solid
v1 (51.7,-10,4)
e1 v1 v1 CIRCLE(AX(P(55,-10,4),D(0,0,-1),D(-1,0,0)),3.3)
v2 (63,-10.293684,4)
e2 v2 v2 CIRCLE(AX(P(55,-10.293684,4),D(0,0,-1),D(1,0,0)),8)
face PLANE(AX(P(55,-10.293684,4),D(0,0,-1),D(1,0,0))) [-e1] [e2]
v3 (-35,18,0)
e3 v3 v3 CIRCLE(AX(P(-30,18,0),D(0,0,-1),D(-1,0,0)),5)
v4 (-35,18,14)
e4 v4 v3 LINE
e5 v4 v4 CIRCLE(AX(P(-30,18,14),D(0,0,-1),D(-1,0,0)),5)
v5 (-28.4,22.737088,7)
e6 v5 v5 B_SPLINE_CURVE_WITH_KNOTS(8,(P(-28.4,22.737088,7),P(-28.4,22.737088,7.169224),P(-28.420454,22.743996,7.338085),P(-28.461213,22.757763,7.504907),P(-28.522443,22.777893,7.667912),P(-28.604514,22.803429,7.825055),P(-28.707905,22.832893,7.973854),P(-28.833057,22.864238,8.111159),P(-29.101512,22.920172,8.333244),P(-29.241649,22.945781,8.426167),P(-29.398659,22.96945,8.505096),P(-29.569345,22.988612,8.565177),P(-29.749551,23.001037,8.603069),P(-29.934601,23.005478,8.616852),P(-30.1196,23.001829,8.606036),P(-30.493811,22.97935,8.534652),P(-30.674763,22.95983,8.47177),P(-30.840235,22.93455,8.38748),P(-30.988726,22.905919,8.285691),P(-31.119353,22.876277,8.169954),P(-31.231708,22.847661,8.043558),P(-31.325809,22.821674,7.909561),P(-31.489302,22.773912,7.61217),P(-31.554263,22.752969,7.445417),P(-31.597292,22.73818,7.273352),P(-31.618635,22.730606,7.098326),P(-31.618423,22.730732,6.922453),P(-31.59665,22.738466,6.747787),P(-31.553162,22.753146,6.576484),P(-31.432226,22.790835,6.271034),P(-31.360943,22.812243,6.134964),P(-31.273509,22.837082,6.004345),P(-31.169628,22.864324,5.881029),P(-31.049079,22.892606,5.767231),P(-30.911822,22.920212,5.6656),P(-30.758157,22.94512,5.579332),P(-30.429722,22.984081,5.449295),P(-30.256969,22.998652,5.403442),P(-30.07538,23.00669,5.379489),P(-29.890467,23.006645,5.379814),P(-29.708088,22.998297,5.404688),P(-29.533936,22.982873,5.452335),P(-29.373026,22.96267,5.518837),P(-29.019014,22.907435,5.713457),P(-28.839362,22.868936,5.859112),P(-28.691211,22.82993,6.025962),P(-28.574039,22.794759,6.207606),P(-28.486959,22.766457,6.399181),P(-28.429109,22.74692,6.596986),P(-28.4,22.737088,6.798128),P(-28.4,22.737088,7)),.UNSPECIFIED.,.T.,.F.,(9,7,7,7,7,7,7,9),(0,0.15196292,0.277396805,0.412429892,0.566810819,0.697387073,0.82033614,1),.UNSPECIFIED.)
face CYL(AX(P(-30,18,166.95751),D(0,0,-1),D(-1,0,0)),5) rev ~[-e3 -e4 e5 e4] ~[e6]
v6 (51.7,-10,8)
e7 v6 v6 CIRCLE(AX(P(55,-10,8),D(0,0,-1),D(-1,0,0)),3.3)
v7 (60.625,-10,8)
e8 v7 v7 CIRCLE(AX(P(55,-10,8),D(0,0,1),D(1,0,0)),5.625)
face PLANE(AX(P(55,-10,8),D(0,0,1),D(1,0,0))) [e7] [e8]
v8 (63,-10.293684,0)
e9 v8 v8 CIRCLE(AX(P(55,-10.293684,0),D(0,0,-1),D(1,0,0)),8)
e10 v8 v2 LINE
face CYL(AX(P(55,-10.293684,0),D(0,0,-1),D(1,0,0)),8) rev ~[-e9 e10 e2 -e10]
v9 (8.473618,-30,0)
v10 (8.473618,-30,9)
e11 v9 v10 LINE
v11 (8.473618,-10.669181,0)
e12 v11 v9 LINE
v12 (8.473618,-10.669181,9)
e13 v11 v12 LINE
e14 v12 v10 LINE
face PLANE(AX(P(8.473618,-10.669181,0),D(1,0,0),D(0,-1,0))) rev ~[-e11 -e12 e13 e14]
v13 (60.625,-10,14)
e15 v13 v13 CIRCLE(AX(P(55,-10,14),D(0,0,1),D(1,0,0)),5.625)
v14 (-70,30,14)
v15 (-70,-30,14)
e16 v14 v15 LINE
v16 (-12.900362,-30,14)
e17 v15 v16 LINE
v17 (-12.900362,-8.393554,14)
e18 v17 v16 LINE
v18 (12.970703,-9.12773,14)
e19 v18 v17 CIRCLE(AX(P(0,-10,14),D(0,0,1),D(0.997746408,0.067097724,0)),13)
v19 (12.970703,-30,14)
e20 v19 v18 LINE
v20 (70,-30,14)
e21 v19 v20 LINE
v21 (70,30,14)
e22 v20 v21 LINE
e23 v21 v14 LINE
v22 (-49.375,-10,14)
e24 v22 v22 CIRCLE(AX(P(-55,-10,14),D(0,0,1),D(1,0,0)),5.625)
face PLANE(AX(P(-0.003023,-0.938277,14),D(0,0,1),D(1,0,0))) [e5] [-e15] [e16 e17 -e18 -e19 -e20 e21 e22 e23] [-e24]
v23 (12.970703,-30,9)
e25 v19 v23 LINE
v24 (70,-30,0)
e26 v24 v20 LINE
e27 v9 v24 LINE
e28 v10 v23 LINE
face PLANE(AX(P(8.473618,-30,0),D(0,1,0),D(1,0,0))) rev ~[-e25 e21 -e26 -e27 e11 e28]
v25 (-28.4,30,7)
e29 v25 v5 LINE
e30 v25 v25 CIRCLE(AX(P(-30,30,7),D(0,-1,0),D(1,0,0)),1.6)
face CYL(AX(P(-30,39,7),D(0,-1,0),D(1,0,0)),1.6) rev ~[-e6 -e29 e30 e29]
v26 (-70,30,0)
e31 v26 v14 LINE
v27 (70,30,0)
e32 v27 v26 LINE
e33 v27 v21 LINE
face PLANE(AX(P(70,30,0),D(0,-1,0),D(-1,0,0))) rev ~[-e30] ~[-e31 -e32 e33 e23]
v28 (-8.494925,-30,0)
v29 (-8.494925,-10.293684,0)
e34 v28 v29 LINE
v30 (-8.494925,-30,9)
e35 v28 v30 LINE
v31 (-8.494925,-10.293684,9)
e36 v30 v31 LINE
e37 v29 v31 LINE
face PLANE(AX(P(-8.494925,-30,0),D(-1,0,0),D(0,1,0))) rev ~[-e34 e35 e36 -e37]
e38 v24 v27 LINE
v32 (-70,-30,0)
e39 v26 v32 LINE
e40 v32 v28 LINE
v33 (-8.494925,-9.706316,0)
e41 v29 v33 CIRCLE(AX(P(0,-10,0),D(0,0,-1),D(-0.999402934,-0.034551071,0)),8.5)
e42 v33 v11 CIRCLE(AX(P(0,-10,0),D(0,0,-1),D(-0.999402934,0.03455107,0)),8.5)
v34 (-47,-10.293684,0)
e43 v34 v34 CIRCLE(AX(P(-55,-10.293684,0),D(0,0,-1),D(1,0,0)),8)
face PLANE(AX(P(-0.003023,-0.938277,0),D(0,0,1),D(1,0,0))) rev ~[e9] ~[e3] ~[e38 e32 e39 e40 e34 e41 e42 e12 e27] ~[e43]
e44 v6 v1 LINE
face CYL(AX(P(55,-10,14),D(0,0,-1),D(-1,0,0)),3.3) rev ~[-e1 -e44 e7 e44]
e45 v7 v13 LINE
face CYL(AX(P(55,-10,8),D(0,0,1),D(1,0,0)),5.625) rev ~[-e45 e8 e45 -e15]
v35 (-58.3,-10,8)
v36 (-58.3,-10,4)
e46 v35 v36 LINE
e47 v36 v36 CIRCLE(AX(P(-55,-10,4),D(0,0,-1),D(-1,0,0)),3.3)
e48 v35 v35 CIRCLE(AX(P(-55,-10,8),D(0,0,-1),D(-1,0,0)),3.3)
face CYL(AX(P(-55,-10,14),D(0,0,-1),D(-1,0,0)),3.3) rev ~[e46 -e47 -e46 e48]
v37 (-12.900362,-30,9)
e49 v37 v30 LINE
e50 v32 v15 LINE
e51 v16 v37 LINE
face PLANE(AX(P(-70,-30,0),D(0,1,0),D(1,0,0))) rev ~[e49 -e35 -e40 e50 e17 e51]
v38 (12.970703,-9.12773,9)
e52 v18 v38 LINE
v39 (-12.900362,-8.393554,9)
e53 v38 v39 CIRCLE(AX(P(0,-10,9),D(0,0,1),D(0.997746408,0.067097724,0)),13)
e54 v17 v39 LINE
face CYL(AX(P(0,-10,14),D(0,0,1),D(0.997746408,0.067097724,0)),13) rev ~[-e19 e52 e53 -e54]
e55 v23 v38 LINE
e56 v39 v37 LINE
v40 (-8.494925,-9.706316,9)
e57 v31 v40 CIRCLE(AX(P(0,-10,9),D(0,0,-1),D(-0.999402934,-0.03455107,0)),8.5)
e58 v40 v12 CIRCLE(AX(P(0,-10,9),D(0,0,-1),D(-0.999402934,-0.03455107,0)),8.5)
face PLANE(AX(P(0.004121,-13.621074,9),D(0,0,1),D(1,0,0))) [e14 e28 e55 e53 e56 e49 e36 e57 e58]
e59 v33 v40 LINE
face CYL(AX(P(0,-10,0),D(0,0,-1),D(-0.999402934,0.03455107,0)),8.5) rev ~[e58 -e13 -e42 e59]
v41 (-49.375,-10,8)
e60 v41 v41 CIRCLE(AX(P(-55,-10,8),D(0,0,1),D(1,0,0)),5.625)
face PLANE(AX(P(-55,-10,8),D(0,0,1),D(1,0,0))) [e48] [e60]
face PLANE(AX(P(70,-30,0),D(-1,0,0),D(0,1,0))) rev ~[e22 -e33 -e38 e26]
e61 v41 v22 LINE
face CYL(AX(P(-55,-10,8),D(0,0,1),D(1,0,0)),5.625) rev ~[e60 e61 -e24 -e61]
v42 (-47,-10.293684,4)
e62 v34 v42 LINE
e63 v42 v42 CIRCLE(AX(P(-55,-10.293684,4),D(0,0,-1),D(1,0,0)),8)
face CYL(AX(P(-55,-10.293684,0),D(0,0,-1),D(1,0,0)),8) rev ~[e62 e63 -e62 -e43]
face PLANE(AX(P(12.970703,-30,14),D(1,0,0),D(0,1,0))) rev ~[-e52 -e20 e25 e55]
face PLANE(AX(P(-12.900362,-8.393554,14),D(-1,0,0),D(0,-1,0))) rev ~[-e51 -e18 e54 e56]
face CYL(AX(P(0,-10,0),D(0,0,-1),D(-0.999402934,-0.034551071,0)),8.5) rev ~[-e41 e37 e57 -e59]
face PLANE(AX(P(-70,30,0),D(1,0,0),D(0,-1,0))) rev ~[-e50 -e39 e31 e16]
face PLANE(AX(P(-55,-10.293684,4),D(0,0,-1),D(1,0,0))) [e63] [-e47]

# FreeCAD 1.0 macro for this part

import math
import FreeCAD as App
import Part
import Sketcher

V = App.Vector

doc = App.newDocument("Part")
body = doc.addObject("PartDesign::Body", "Body")

sketch1 = doc.addObject("Sketcher::SketchObject", "Sketch")
body.addObject(sketch1)
sketch1.AttachmentSupport = (doc.XY_Plane, [""])
sketch1.MapMode = "FlatFace"
sketch1.addGeometry([
    Part.LineSegment(V(8.5, -30, 0), V(70, -30, 0)),
    Part.LineSegment(V(70, -30, 0), V(70, 30, 0)),
    Part.LineSegment(V(70, 30, 0), V(-70, 30, 0)),
    Part.LineSegment(V(-70, 30, 0), V(-70, -30, 0)),
    Part.LineSegment(V(-70, -30, 0), V(-8.5, -30, 0)),
    Part.LineSegment(V(-8.5, -30, 0), V(-8.5, -10.3, 0)),
    Part.ArcOfCircle(Part.Circle(V(0, -10, 0), V(0, 0, 1), 8.5), math.radians(178.02), math.radians(181.98)),
    Part.ArcOfCircle(Part.Circle(V(0, -10, 0), V(0, 0, 1), 8.5), math.radians(-5), math.radians(178)),
    Part.LineSegment(V(8.5, -10.7, 0), V(8.5, -30, 0)),
], False)
sketch1.addConstraint([
    Sketcher.Constraint("Coincident", 0, 2, 1, 1),
    Sketcher.Constraint("Coincident", 1, 2, 2, 1),
    Sketcher.Constraint("Coincident", 2, 2, 3, 1),
    Sketcher.Constraint("Coincident", 3, 2, 4, 1),
    Sketcher.Constraint("Coincident", 4, 2, 5, 1),
    Sketcher.Constraint("Coincident", 5, 2, 6, 2),
    Sketcher.Constraint("Tangent", 6, 1, 7, 2),
    Sketcher.Constraint("Coincident", 7, 1, 8, 1),
    Sketcher.Constraint("Coincident", 8, 2, 0, 1),
    Sketcher.Constraint("Horizontal", 0),
    Sketcher.Constraint("Vertical", 1),
    Sketcher.Constraint("Horizontal", 2),
    Sketcher.Constraint("Vertical", 3),
    Sketcher.Constraint("Horizontal", 4),
    Sketcher.Constraint("Vertical", 5),
    Sketcher.Constraint("Vertical", 8),
    Sketcher.Constraint("Equal", 6, 7),
    Sketcher.Constraint("Symmetric", 0, 2, 2, 2, -1, 1),
    Sketcher.Constraint("PointOnObject", 6, 3, -2),
    Sketcher.Constraint("Horizontal", 0, 2, 3, 2),
    Sketcher.Constraint("Vertical", 5, 2, 6, 1),
    Sketcher.Constraint("Radius", 6, 8.5),
    Sketcher.Constraint("DistanceX", 2, 2, 2, 1, 140.0),
    Sketcher.Constraint("DistanceY", 1, 1, 1, 2, 60.0),
    Sketcher.Constraint("DistanceY", 6, 3, -1, 1, 10.0),
    Sketcher.Constraint("DistanceY", 8, 2, 8, 1, 19.330819),
    Sketcher.Constraint("DistanceX", 4, 1, 4, 2, 61.505075),
])
pad1 = doc.addObject("PartDesign::Pad", "Pad")
body.addObject(pad1)
pad1.Profile = sketch1
pad1.Length = 14

sketch2 = doc.addObject("Sketcher::SketchObject", "Sketch001")
body.addObject(sketch2)
sketch2.AttachmentSupport = (doc.XY_Plane, [""])
sketch2.MapMode = "FlatFace"
sketch2.AttachmentOffset = App.Placement(V(0, 0, 14), App.Rotation())
sketch2.addGeometry([
    Part.LineSegment(V(13, -30, 0), V(13, -9.1, 0)),
    Part.ArcOfCircle(Part.Circle(V(0, -10, 0), V(0, 0, 1), 13), math.radians(4), math.radians(173)),
    Part.LineSegment(V(-12.9, -8.4, 0), V(-12.9, -30, 0)),
    Part.LineSegment(V(-12.9, -30, 0), V(-8.5, -30, 0)),
    Part.LineSegment(V(-8.5, -30, 0), V(-8.5, -10.3, 0)),
    Part.ArcOfCircle(Part.Circle(V(0, -10, 0), V(0, 0, 1), 8.5), math.radians(-5), math.radians(182)),
    Part.LineSegment(V(8.5, -10.7, 0), V(8.5, -30, 0)),
    Part.LineSegment(V(8.5, -30, 0), V(13, -30, 0)),
], False)
sketch2.addConstraint([
    Sketcher.Constraint("Coincident", 0, 2, 1, 1),
    Sketcher.Constraint("Coincident", 1, 2, 2, 1),
    Sketcher.Constraint("Coincident", 2, 2, 3, 1),
    Sketcher.Constraint("Coincident", 3, 2, 4, 1),
    Sketcher.Constraint("Coincident", 4, 2, 5, 2),
    Sketcher.Constraint("Coincident", 5, 1, 6, 1),
    Sketcher.Constraint("Coincident", 6, 2, 7, 1),
    Sketcher.Constraint("Coincident", 7, 2, 0, 1),
    Sketcher.Constraint("Vertical", 0),
    Sketcher.Constraint("Vertical", 2),
    Sketcher.Constraint("Horizontal", 3),
    Sketcher.Constraint("Vertical", 4),
    Sketcher.Constraint("Vertical", 6),
    Sketcher.Constraint("Horizontal", 7),
    Sketcher.Constraint("Coincident", 5, 3, 1, 3),
    Sketcher.Constraint("PointOnObject", 1, 3, -2),
    Sketcher.Constraint("Horizontal", 3, 2, 6, 2),
    Sketcher.Constraint("Radius", 1, 13.0),
    Sketcher.Constraint("Radius", 5, 8.5),
    Sketcher.Constraint("DistanceY", 1, 3, -1, 1, 10.0),
    Sketcher.Constraint("DistanceY", 2, 2, -1, 1, 30.0),
    Sketcher.Constraint("DistanceY", 0, 1, 0, 2, 20.87227),
    Sketcher.Constraint("DistanceY", 6, 2, 6, 1, 19.330819),
    Sketcher.Constraint("DistanceX", 3, 1, 3, 2, 4.405437),
    Sketcher.Constraint("DistanceY", 2, 2, 2, 1, 21.606446),
])
pocket1 = doc.addObject("PartDesign::Pocket", "Pocket")
body.addObject(pocket1)
pocket1.Profile = sketch2
pocket1.Length = 5

sketch3 = doc.addObject("Sketcher::SketchObject", "Sketch002")
body.addObject(sketch3)
sketch3.AttachmentSupport = (doc.XY_Plane, [""])
sketch3.MapMode = "FlatFace"
sketch3.AttachmentOffset = App.Placement(V(0, 0, 14), App.Rotation())
sketch3.addGeometry(Part.Circle(V(-30, 18, 0), V(0, 0, 1), 5), False)
sketch3.addConstraint([
    Sketcher.Constraint("Diameter", 0, 10.0),
    Sketcher.Constraint("DistanceX", 0, 3, -1, 1, 30.0),
    Sketcher.Constraint("DistanceY", -1, 1, 0, 3, 18.0),
])
doc.recompute()
hole = doc.addObject("PartDesign::Hole", "Hole")
body.addObject(hole)
hole.Profile = sketch3
hole.ThreadType = "None"
hole.Diameter = 10
hole.DepthType = "ThroughAll"

sketch4 = doc.addObject("Sketcher::SketchObject", "Sketch003")
body.addObject(sketch4)
sketch4.AttachmentSupport = (doc.XY_Plane, [""])
sketch4.MapMode = "FlatFace"
sketch4.addGeometry([
    Part.Circle(V(-55, -10, 0), V(0, 0, 1), 8),
    Part.Circle(V(55, -10, 0), V(0, 0, 1), 8),
], False)
sketch4.addConstraint([
    Sketcher.Constraint("Equal", 0, 1),
    Sketcher.Constraint("Symmetric", 0, 3, 1, 3, -2),
    Sketcher.Constraint("Diameter", 0, 16.0),
    Sketcher.Constraint("DistanceX", 0, 3, -1, 1, 55.0),
    Sketcher.Constraint("DistanceY", 0, 3, -1, 1, 10.293684),
])
pocket2 = doc.addObject("PartDesign::Pocket", "Pocket001")
body.addObject(pocket2)
pocket2.Profile = sketch4
pocket2.Length = 4
pocket2.Reversed = True

sketch5 = doc.addObject("Sketcher::SketchObject", "Sketch004")
body.addObject(sketch5)
sketch5.AttachmentSupport = (doc.XY_Plane, [""])
sketch5.MapMode = "FlatFace"
sketch5.AttachmentOffset = App.Placement(V(0, 0, 14), App.Rotation())
sketch5.addGeometry([
    Part.Circle(V(-55, -10, 0), V(0, 0, 1), 3.3),
    Part.Circle(V(55, -10, 0), V(0, 0, 1), 3.3),
], False)
sketch5.addConstraint([
    Sketcher.Constraint("Equal", 0, 1),
    Sketcher.Constraint("Symmetric", 0, 3, 1, 3, -2),
    Sketcher.Constraint("Diameter", 0, 6.6),
    Sketcher.Constraint("DistanceX", 0, 3, -1, 1, 55.0),
    Sketcher.Constraint("DistanceY", 0, 3, -1, 1, 10.0),
])
doc.recompute()
hole2 = doc.addObject("PartDesign::Hole", "Hole001")
body.addObject(hole2)
hole2.Profile = sketch5
hole2.ThreadType = "None"
hole2.Diameter = 6.6
hole2.DepthType = "ThroughAll"
hole2.HoleCutType = "Counterbore"
hole2.HoleCutDiameter = 11.25
hole2.HoleCutDepth = 6

sketch6 = doc.addObject("Sketcher::SketchObject", "Sketch005")
body.addObject(sketch6)
sketch6.AttachmentSupport = (doc.XZ_Plane, [""])
sketch6.MapMode = "FlatFace"
sketch6.AttachmentOffset = App.Placement(V(0, 0, -30), App.Rotation())
sketch6.addGeometry(Part.Circle(V(-30, 7, 0), V(0, 0, 1), 1.6), False)
sketch6.addConstraint([
    Sketcher.Constraint("Diameter", 0, 3.2),
    Sketcher.Constraint("DistanceX", 0, 3, -1, 1, 30.0),
    Sketcher.Constraint("DistanceY", -1, 1, 0, 3, 7.0),
])
doc.recompute()
hole3 = doc.addObject("PartDesign::Hole", "Hole002")
body.addObject(hole3)
hole3.Profile = sketch6
hole3.ThreadType = "None"
hole3.Diameter = 3.2
hole3.DepthType = "Dimension"
hole3.Depth = 9
hole3.DrillPoint = "Angled"
hole3.DrillPointAngle = 118
hole3.Reversed = True

doc.recompute()
